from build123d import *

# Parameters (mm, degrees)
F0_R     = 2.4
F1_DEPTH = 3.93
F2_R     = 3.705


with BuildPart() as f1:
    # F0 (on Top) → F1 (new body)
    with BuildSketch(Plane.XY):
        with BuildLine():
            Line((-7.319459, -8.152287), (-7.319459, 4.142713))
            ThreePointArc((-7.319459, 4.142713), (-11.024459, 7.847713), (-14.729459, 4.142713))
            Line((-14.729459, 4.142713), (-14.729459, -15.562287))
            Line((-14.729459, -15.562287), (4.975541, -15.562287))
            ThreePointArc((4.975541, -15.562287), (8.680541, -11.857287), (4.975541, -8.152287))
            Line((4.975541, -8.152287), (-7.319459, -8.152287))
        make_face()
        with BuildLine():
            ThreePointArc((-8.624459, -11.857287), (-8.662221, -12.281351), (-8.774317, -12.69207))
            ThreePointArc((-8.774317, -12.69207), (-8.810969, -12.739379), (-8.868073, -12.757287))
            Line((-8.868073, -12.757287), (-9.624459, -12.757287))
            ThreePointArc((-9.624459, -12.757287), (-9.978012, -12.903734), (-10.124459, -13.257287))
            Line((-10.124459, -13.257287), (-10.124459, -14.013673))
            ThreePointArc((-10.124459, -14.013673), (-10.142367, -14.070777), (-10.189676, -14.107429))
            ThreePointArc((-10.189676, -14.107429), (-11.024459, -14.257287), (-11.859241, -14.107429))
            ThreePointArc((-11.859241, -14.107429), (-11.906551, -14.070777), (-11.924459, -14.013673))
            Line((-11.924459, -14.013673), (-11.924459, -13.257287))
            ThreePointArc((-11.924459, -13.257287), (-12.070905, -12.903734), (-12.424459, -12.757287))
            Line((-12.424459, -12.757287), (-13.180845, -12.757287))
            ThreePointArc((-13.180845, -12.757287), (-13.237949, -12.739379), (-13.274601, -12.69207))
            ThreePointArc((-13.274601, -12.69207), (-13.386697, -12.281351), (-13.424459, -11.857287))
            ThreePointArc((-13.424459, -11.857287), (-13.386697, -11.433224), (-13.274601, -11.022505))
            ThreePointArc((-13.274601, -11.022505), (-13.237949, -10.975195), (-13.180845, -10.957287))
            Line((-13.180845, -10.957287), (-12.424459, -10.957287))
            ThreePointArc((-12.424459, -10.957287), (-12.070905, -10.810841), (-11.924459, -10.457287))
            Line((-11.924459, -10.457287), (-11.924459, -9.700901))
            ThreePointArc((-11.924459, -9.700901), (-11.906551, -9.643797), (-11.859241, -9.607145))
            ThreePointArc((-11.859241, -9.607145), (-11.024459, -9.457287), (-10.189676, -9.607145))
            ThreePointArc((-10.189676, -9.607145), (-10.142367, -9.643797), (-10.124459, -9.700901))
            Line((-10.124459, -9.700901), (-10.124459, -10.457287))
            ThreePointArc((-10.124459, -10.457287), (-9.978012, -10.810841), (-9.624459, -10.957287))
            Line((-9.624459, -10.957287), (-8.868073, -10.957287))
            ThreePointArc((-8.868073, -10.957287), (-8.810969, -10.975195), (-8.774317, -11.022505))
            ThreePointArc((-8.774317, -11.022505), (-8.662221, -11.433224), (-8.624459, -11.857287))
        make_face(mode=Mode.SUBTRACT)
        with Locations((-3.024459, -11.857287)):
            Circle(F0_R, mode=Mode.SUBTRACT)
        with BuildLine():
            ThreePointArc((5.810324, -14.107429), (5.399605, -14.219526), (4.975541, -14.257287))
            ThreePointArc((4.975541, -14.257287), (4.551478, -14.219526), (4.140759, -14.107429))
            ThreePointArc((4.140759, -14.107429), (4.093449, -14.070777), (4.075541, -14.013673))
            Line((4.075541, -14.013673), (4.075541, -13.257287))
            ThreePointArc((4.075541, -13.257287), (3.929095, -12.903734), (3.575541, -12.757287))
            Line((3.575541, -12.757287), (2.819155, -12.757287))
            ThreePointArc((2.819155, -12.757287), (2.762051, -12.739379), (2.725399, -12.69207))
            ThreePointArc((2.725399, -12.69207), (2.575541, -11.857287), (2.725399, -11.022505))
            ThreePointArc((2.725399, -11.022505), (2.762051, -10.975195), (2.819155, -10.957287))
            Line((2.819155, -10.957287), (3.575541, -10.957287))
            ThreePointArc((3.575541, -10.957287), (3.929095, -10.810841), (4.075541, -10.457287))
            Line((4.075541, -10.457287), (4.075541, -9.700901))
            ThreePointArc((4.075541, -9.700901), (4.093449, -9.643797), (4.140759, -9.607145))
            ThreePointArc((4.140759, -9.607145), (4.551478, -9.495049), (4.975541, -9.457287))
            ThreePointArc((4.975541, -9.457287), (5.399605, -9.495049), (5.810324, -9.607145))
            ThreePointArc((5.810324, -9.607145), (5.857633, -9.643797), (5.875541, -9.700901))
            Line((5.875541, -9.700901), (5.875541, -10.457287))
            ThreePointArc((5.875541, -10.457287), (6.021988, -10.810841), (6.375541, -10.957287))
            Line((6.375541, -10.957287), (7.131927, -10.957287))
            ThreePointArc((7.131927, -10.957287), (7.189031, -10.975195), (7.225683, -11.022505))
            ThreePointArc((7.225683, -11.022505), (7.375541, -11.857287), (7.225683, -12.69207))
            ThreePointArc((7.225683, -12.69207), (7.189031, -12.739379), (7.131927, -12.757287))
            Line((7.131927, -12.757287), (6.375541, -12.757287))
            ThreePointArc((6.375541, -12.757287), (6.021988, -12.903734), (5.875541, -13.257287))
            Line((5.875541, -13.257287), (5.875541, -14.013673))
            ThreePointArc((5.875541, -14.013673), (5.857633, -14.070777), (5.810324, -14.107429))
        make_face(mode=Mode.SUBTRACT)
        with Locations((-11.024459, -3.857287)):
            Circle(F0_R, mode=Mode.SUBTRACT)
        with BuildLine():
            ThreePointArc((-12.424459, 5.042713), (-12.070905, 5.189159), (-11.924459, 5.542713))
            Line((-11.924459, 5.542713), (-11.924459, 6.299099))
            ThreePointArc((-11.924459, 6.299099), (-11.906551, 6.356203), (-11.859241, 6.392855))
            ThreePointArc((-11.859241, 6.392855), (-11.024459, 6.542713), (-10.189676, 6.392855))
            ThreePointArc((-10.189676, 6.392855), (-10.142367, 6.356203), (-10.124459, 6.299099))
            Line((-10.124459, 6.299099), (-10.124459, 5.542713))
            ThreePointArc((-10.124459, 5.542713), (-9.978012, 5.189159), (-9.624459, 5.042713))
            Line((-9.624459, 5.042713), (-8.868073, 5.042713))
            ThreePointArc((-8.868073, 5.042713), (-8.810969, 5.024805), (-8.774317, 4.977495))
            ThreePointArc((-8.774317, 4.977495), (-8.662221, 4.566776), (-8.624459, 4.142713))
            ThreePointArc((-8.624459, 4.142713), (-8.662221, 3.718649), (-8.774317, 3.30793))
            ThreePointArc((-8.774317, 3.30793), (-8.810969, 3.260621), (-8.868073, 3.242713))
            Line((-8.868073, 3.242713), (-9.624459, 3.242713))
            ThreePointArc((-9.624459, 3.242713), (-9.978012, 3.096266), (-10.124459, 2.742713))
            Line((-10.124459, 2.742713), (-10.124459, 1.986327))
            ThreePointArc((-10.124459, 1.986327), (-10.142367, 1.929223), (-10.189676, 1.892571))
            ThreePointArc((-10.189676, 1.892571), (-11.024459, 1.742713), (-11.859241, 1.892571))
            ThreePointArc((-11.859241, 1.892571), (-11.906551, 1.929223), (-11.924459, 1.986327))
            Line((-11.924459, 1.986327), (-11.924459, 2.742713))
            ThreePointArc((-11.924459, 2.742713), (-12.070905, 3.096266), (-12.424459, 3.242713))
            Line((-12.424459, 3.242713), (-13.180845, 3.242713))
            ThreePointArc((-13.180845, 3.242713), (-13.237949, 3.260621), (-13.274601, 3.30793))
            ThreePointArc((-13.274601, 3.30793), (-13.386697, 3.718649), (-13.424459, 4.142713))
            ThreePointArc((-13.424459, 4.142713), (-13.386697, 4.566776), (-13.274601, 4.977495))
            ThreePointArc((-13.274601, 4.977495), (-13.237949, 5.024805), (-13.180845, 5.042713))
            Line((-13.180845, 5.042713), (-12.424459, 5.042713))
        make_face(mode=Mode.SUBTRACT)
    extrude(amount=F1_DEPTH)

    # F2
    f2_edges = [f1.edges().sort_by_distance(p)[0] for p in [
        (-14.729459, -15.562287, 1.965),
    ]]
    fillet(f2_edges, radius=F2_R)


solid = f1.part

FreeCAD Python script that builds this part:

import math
import FreeCAD as App
import Part
import Sketcher
from FreeCAD import Vector
Q = App.Units.Quantity


def edges_at(feature, points):
    """Names of the edges that pass closest to the given points."""
    edges = feature.Shape.Edges
    near = lambda p: min(range(len(edges)), key=lambda i: edges[i].distToShape(Part.Vertex(*p))[0])
    return sorted({f"Edge{near(p) + 1}" for p in points})

doc = App.newDocument("Part")
body = doc.addObject("PartDesign::Body", "Body")

# Sketch on XY plane
sketch1 = doc.addObject("Sketcher::SketchObject", "Sketch")
body.addObject(sketch1)
sketch1.AttachmentSupport = (doc.XY_Plane, [""])
sketch1.MapMode = "FlatFace"
sketch1.addGeometry([
    Part.LineSegment(Vector(-7.319459, -8.152287, 0), Vector(-7.319459, 4.142713, 0)),  # 0
    Part.ArcOfCircle(Part.Circle(Vector(-11.024459, 4.142713, 0), Vector(0, 0, 1), 3.705), math.radians(0), math.radians(180)),  # 1
    Part.LineSegment(Vector(-14.729459, 4.142713, 0), Vector(-14.729459, -15.562287, 0)),  # 2
    Part.LineSegment(Vector(-14.729459, -15.562287, 0), Vector(4.975541, -15.562287, 0)),  # 3
    Part.ArcOfCircle(Part.Circle(Vector(4.975541, -11.857287, 0), Vector(0, 0, 1), 3.705), math.radians(-90), math.radians(90)),  # 4
    Part.LineSegment(Vector(4.975541, -8.152287, 0), Vector(-7.319459, -8.152287, 0)),  # 5
    Part.ArcOfCircle(Part.Circle(Vector(-11.024488, -11.857292, 0), Vector(0, 0, 1), 2.400029), math.radians(0.000123), math.radians(20.354268)),  # 6
    Part.ArcOfCircle(Part.Circle(Vector(-11.024488, -11.857283, 0), Vector(0, 0, 1), 2.400029), math.radians(-20.354268), math.radians(-0.000099)),  # 7
    Part.ArcOfCircle(Part.Circle(Vector(-8.868074, -12.657286, 0), Vector(0, 0, 1), 0.100001), math.radians(-89.999553), math.radians(-20.355229)),  # 8
    Part.LineSegment(Vector(-8.868073, -12.757287, 0), Vector(-9.624459, -12.757287, 0)),  # 9
    Part.ArcOfCircle(Part.Circle(Vector(-9.624458, -13.257288, 0), Vector(0, 0, 1), 0.500001), math.radians(90.000153), math.radians(179.999847)),  # 10
    Part.LineSegment(Vector(-10.124459, -13.257287, 0), Vector(-10.124459, -14.013673, 0)),  # 11
    Part.ArcOfCircle(Part.Circle(Vector(-10.22446, -14.013672, 0), Vector(0, 0, 1), 0.100001), math.radians(-69.644771), math.radians(-0.000447)),  # 12
    Part.ArcOfCircle(Part.Circle(Vector(-11.024458, -11.857284, 0), Vector(0, 0, 1), 2.400003), math.radians(-110.354379), math.radians(-69.645621)),  # 13
    Part.ArcOfCircle(Part.Circle(Vector(-11.824459, -14.013673, 0), Vector(0, 0, 1), 0.1), math.radians(-179.999727), math.radians(-110.354231)),  # 14
    Part.LineSegment(Vector(-11.924459, -14.013673, 0), Vector(-11.924459, -13.257287, 0)),  # 15
    Part.ArcOfCircle(Part.Circle(Vector(-12.424459, -13.257287, 0), Vector(0, 0, 1), 0.5), math.radians(-0.000043), math.radians(90.000043)),  # 16
    Part.LineSegment(Vector(-12.424459, -12.757287, 0), Vector(-13.180845, -12.757287, 0)),  # 17
    Part.ArcOfCircle(Part.Circle(Vector(-13.180844, -12.657286, 0), Vector(0, 0, 1), 0.100001), math.radians(-159.644771), math.radians(-90.000447)),  # 18
    Part.ArcOfCircle(Part.Circle(Vector(-11.02443, -11.857283, 0), Vector(0, 0, 1), 2.400029), math.radians(-179.999901), math.radians(-159.645732)),  # 19
    Part.ArcOfCircle(Part.Circle(Vector(-11.02443, -11.857292, 0), Vector(0, 0, 1), 2.400029), math.radians(159.645732), math.radians(179.999877)),  # 20
    Part.ArcOfCircle(Part.Circle(Vector(-13.180845, -11.057287, 0), Vector(0, 0, 1), 0.1), math.radians(90.000273), math.radians(159.645769)),  # 21
    Part.LineSegment(Vector(-13.180845, -10.957287, 0), Vector(-12.424459, -10.957287, 0)),  # 22
    Part.ArcOfCircle(Part.Circle(Vector(-12.424457, -10.457289, 0), Vector(0, 0, 1), 0.499998), math.radians(-90.000238), math.radians(0.000238)),  # 23
    Part.LineSegment(Vector(-11.924459, -10.457287, 0), Vector(-11.924459, -9.700901, 0)),  # 24
    Part.ArcOfCircle(Part.Circle(Vector(-11.824459, -9.700901, 0), Vector(0, 0, 1), 0.1), math.radians(110.354231), math.radians(179.999727)),  # 25
    Part.ArcOfCircle(Part.Circle(Vector(-11.024458, -11.85729, 0), Vector(0, 0, 1), 2.400003), math.radians(69.645621), math.radians(110.354379)),  # 26
    Part.ArcOfCircle(Part.Circle(Vector(-10.22446, -9.700902, 0), Vector(0, 0, 1), 0.100001), math.radians(0.000447), math.radians(69.644771)),  # 27
    Part.LineSegment(Vector(-10.124459, -9.700901, 0), Vector(-10.124459, -10.457287, 0)),  # 28
    Part.ArcOfCircle(Part.Circle(Vector(-9.624459, -10.457287, 0), Vector(0, 0, 1), 0.5), math.radians(179.999957), math.radians(270.000043)),  # 29
    Part.LineSegment(Vector(-9.624459, -10.957287, 0), Vector(-8.868073, -10.957287, 0)),  # 30
    Part.ArcOfCircle(Part.Circle(Vector(-8.868073, -11.057287, 0), Vector(0, 0, 1), 0.1), math.radians(20.354231), math.radians(89.999727)),  # 31
    Part.Circle(Vector(-3.024459, -11.857287, 0), Vector(0, 0, 1), 2.4),  # 32
    Part.ArcOfCircle(Part.Circle(Vector(5.77554, -14.013672, 0), Vector(0, 0, 1), 0.100001), math.radians(-69.644771), math.radians(-0.000447)),  # 33
    Part.ArcOfCircle(Part.Circle(Vector(4.975548, -11.85732, 0), Vector(0, 0, 1), 2.399967), math.radians(-90.000165), math.radians(-69.645469)),  # 34
    Part.ArcOfCircle(Part.Circle(Vector(4.975535, -11.85732, 0), Vector(0, 0, 1), 2.399967), math.radians(-110.354531), math.radians(-89.999859)),  # 35
    Part.ArcOfCircle(Part.Circle(Vector(4.175541, -14.013673, 0), Vector(0, 0, 1), 0.1), math.radians(-179.999727), math.radians(-110.354231)),  # 36
    Part.LineSegment(Vector(4.075541, -14.013673, 0), Vector(4.075541, -13.257287, 0)),  # 37
    Part.ArcOfCircle(Part.Circle(Vector(3.575541, -13.257287, 0), Vector(0, 0, 1), 0.5), math.radians(-0.000043), math.radians(90.000043)),  # 38
    Part.LineSegment(Vector(3.575541, -12.757287, 0), Vector(2.819155, -12.757287, 0)),  # 39
    Part.ArcOfCircle(Part.Circle(Vector(2.819156, -12.657286, 0), Vector(0, 0, 1), 0.100001), math.radians(-159.644771), math.radians(-90.000447)),  # 40
    Part.ArcOfCircle(Part.Circle(Vector(4.975544, -11.857287, 0), Vector(0, 0, 1), 2.400003), math.radians(159.645621), math.radians(200.354379)),  # 41
    Part.ArcOfCircle(Part.Circle(Vector(2.819155, -11.057287, 0), Vector(0, 0, 1), 0.1), math.radians(90.000273), math.radians(159.645769)),  # 42
    Part.LineSegment(Vector(2.819155, -10.957287, 0), Vector(3.575541, -10.957287, 0)),  # 43
    Part.ArcOfCircle(Part.Circle(Vector(3.575543, -10.457289, 0), Vector(0, 0, 1), 0.499998), math.radians(-90.000238), math.radians(0.000238)),  # 44
    Part.LineSegment(Vector(4.075541, -10.457287, 0), Vector(4.075541, -9.700901, 0)),  # 45
    Part.ArcOfCircle(Part.Circle(Vector(4.175541, -9.700901, 0), Vector(0, 0, 1), 0.1), math.radians(110.354231), math.radians(179.999727)),  # 46
    Part.ArcOfCircle(Part.Circle(Vector(4.975546, -11.857316, 0), Vector(0, 0, 1), 2.400029), math.radians(90.000123), math.radians(110.354268)),  # 47
    Part.ArcOfCircle(Part.Circle(Vector(4.975537, -11.857316, 0), Vector(0, 0, 1), 2.400029), math.radians(69.645732), math.radians(89.999901)),  # 48
    Part.ArcOfCircle(Part.Circle(Vector(5.77554, -9.700902, 0), Vector(0, 0, 1), 0.100001), math.radians(0.000447), math.radians(69.644771)),  # 49
    Part.LineSegment(Vector(5.875541, -9.700901, 0), Vector(5.875541, -10.457287, 0)),  # 50
    Part.ArcOfCircle(Part.Circle(Vector(6.375541, -10.457287, 0), Vector(0, 0, 1), 0.5), math.radians(179.999957), math.radians(270.000043)),  # 51
    Part.LineSegment(Vector(6.375541, -10.957287, 0), Vector(7.131927, -10.957287, 0)),  # 52
    Part.ArcOfCircle(Part.Circle(Vector(7.131927, -11.057287, 0), Vector(0, 0, 1), 0.1), math.radians(20.354231), math.radians(89.999727)),  # 53
    Part.ArcOfCircle(Part.Circle(Vector(4.975538, -11.857287, 0), Vector(0, 0, 1), 2.400003), math.radians(-20.354379), math.radians(20.354379)),  # 54
    Part.ArcOfCircle(Part.Circle(Vector(7.131926, -12.657286, 0), Vector(0, 0, 1), 0.100001), math.radians(-89.999553), math.radians(-20.355229)),  # 55
    Part.LineSegment(Vector(7.131927, -12.757287, 0), Vector(6.375541, -12.757287, 0)),  # 56
    Part.ArcOfCircle(Part.Circle(Vector(6.375542, -13.257288, 0), Vector(0, 0, 1), 0.500001), math.radians(90.000153), math.radians(179.999847)),  # 57
    Part.LineSegment(Vector(5.875541, -13.257287, 0), Vector(5.875541, -14.013673, 0)),  # 58
    Part.Circle(Vector(-11.024459, -3.857287, 0), Vector(0, 0, 1), 2.4),  # 59
    Part.LineSegment(Vector(-13.180845, 5.042713, 0), Vector(-12.424459, 5.042713, 0)),  # 60
    Part.ArcOfCircle(Part.Circle(Vector(-12.424457, 5.542711, 0), Vector(0, 0, 1), 0.499998), math.radians(-90.000238), math.radians(0.000238)),  # 61
    Part.LineSegment(Vector(-11.924459, 5.542713, 0), Vector(-11.924459, 6.299099, 0)),  # 62
    Part.ArcOfCircle(Part.Circle(Vector(-11.824459, 6.299099, 0), Vector(0, 0, 1), 0.1), math.radians(110.354231), math.radians(179.999727)),  # 63
    Part.ArcOfCircle(Part.Circle(Vector(-11.024458, 4.14271, 0), Vector(0, 0, 1), 2.400003), math.radians(69.645621), math.radians(110.354379)),  # 64
    Part.ArcOfCircle(Part.Circle(Vector(-10.22446, 6.299098, 0), Vector(0, 0, 1), 0.100001), math.radians(0.000447), math.radians(69.644771)),  # 65
    Part.LineSegment(Vector(-10.124459, 6.299099, 0), Vector(-10.124459, 5.542713, 0)),  # 66
    Part.ArcOfCircle(Part.Circle(Vector(-9.624459, 5.542713, 0), Vector(0, 0, 1), 0.5), math.radians(179.999957), math.radians(270.000043)),  # 67
    Part.LineSegment(Vector(-9.624459, 5.042713, 0), Vector(-8.868073, 5.042713, 0)),  # 68
    Part.ArcOfCircle(Part.Circle(Vector(-8.868073, 4.942713, 0), Vector(0, 0, 1), 0.1), math.radians(20.354231), math.radians(89.999727)),  # 69
    Part.ArcOfCircle(Part.Circle(Vector(-11.024488, 4.142708, 0), Vector(0, 0, 1), 2.400029), math.radians(0.000123), math.radians(20.354268)),  # 70
    Part.ArcOfCircle(Part.Circle(Vector(-11.024488, 4.142717, 0), Vector(0, 0, 1), 2.400029), math.radians(-20.354268), math.radians(-0.000099)),  # 71
    Part.ArcOfCircle(Part.Circle(Vector(-8.868074, 3.342714, 0), Vector(0, 0, 1), 0.100001), math.radians(-89.999553), math.radians(-20.355229)),  # 72
    Part.LineSegment(Vector(-8.868073, 3.242713, 0), Vector(-9.624459, 3.242713, 0)),  # 73
    Part.ArcOfCircle(Part.Circle(Vector(-9.624458, 2.742712, 0), Vector(0, 0, 1), 0.500001), math.radians(90.000153), math.radians(179.999847)),  # 74
    Part.LineSegment(Vector(-10.124459, 2.742713, 0), Vector(-10.124459, 1.986327, 0)),  # 75
    Part.ArcOfCircle(Part.Circle(Vector(-10.22446, 1.986328, 0), Vector(0, 0, 1), 0.100001), math.radians(-69.644771), math.radians(-0.000447)),  # 76
    Part.ArcOfCircle(Part.Circle(Vector(-11.024458, 4.142716, 0), Vector(0, 0, 1), 2.400003), math.radians(-110.354379), math.radians(-69.645621)),  # 77
    Part.ArcOfCircle(Part.Circle(Vector(-11.824459, 1.986327, 0), Vector(0, 0, 1), 0.1), math.radians(-179.999727), math.radians(-110.354231)),  # 78
    Part.LineSegment(Vector(-11.924459, 1.986327, 0), Vector(-11.924459, 2.742713, 0)),  # 79
    Part.ArcOfCircle(Part.Circle(Vector(-12.424459, 2.742713, 0), Vector(0, 0, 1), 0.5), math.radians(-0.000043), math.radians(90.000043)),  # 80
    Part.LineSegment(Vector(-12.424459, 3.242713, 0), Vector(-13.180845, 3.242713, 0)),  # 81
    Part.ArcOfCircle(Part.Circle(Vector(-13.180844, 3.342714, 0), Vector(0, 0, 1), 0.100001), math.radians(-159.644771), math.radians(-90.000447)),  # 82
    Part.ArcOfCircle(Part.Circle(Vector(-11.02443, 4.142717, 0), Vector(0, 0, 1), 2.400029), math.radians(-179.999901), math.radians(-159.645732)),  # 83
    Part.ArcOfCircle(Part.Circle(Vector(-11.02443, 4.142708, 0), Vector(0, 0, 1), 2.400029), math.radians(159.645732), math.radians(179.999877)),  # 84
    Part.ArcOfCircle(Part.Circle(Vector(-13.180845, 4.942713, 0), Vector(0, 0, 1), 0.1), math.radians(90.000273), math.radians(159.645769)),  # 85
], False)
sketch1.addConstraint([
    Sketcher.Constraint("Coincident", 0, 2, 1, 1),
    Sketcher.Constraint("Coincident", 1, 2, 2, 1),
    Sketcher.Constraint("Coincident", 2, 2, 3, 1),
    Sketcher.Constraint("Coincident", 3, 2, 4, 1),
    Sketcher.Constraint("Coincident", 4, 2, 5, 1),
    Sketcher.Constraint("Coincident", 5, 2, 0, 1),
    Sketcher.Constraint("Coincident", 6, 1, 7, 2),
    Sketcher.Constraint("Coincident", 7, 1, 8, 2),
    Sketcher.Constraint("Coincident", 8, 1, 9, 1),
    Sketcher.Constraint("Coincident", 9, 2, 10, 1),
    Sketcher.Constraint("Coincident", 10, 2, 11, 1),
    Sketcher.Constraint("Coincident", 11, 2, 12, 2),
    Sketcher.Constraint("Coincident", 12, 1, 13, 2),
    Sketcher.Constraint("Coincident", 13, 1, 14, 2),
    Sketcher.Constraint("Coincident", 14, 1, 15, 1),
    Sketcher.Constraint("Coincident", 15, 2, 16, 1),
    Sketcher.Constraint("Coincident", 16, 2, 17, 1),
    Sketcher.Constraint("Coincident", 17, 2, 18, 2),
    Sketcher.Constraint("Coincident", 18, 1, 19, 2),
    Sketcher.Constraint("Coincident", 19, 1, 20, 2),
    Sketcher.Constraint("Coincident", 20, 1, 21, 2),
    Sketcher.Constraint("Coincident", 21, 1, 22, 1),
    Sketcher.Constraint("Coincident", 22, 2, 23, 1),
    Sketcher.Constraint("Coincident", 23, 2, 24, 1),
    Sketcher.Constraint("Coincident", 24, 2, 25, 2),
    Sketcher.Constraint("Coincident", 25, 1, 26, 2),
    Sketcher.Constraint("Coincident", 26, 1, 27, 2),
    Sketcher.Constraint("Coincident", 27, 1, 28, 1),
    Sketcher.Constraint("Coincident", 28, 2, 29, 1),
    Sketcher.Constraint("Coincident", 29, 2, 30, 1),
    Sketcher.Constraint("Coincident", 30, 2, 31, 2),
    Sketcher.Constraint("Coincident", 31, 1, 6, 2),
    Sketcher.Constraint("Coincident", 33, 1, 34, 2),
    Sketcher.Constraint("Coincident", 34, 1, 35, 2),
    Sketcher.Constraint("Coincident", 35, 1, 36, 2),
    Sketcher.Constraint("Coincident", 36, 1, 37, 1),
    Sketcher.Constraint("Coincident", 37, 2, 38, 1),
    Sketcher.Constraint("Coincident", 38, 2, 39, 1),
    Sketcher.Constraint("Coincident", 39, 2, 40, 2),
    Sketcher.Constraint("Coincident", 40, 1, 41, 2),
    Sketcher.Constraint("Coincident", 41, 1, 42, 2),
    Sketcher.Constraint("Coincident", 42, 1, 43, 1),
    Sketcher.Constraint("Coincident", 43, 2, 44, 1),
    Sketcher.Constraint("Coincident", 44, 2, 45, 1),
    Sketcher.Constraint("Coincident", 45, 2, 46, 2),
    Sketcher.Constraint("Coincident", 46, 1, 47, 2),
    Sketcher.Constraint("Coincident", 47, 1, 48, 2),
    Sketcher.Constraint("Coincident", 48, 1, 49, 2),
    Sketcher.Constraint("Coincident", 49, 1, 50, 1),
    Sketcher.Constraint("Coincident", 50, 2, 51, 1),
    Sketcher.Constraint("Coincident", 51, 2, 52, 1),
    Sketcher.Constraint("Coincident", 52, 2, 53, 2),
    Sketcher.Constraint("Coincident", 53, 1, 54, 2),
    Sketcher.Constraint("Coincident", 54, 1, 55, 2),
    Sketcher.Constraint("Coincident", 55, 1, 56, 1),
    Sketcher.Constraint("Coincident", 56, 2, 57, 1),
    Sketcher.Constraint("Coincident", 57, 2, 58, 1),
    Sketcher.Constraint("Coincident", 58, 2, 33, 2),
    Sketcher.Constraint("Coincident", 60, 2, 61, 1),
    Sketcher.Constraint("Coincident", 61, 2, 62, 1),
    Sketcher.Constraint("Coincident", 62, 2, 63, 2),
    Sketcher.Constraint("Coincident", 63, 1, 64, 2),
    Sketcher.Constraint("Coincident", 64, 1, 65, 2),
    Sketcher.Constraint("Coincident", 65, 1, 66, 1),
    Sketcher.Constraint("Coincident", 66, 2, 67, 1),
    Sketcher.Constraint("Coincident", 67, 2, 68, 1),
    Sketcher.Constraint("Coincident", 68, 2, 69, 2),
    Sketcher.Constraint("Coincident", 69, 1, 70, 2),
    Sketcher.Constraint("Coincident", 70, 1, 71, 2),
    Sketcher.Constraint("Coincident", 71, 1, 72, 2),
    Sketcher.Constraint("Coincident", 72, 1, 73, 1),
    Sketcher.Constraint("Coincident", 73, 2, 74, 1),
    Sketcher.Constraint("Coincident", 74, 2, 75, 1),
    Sketcher.Constraint("Coincident", 75, 2, 76, 2),
    Sketcher.Constraint("Coincident", 76, 1, 77, 2),
    Sketcher.Constraint("Coincident", 77, 1, 78, 2),
    Sketcher.Constraint("Coincident", 78, 1, 79, 1),
    Sketcher.Constraint("Coincident", 79, 2, 80, 1),
    Sketcher.Constraint("Coincident", 80, 2, 81, 1),
    Sketcher.Constraint("Coincident", 81, 2, 82, 2),
    Sketcher.Constraint("Coincident", 82, 1, 83, 2),
    Sketcher.Constraint("Coincident", 83, 1, 84, 2),
    Sketcher.Constraint("Coincident", 84, 1, 85, 2),
    Sketcher.Constraint("Coincident", 85, 1, 60, 1),
    Sketcher.Constraint("Vertical", 0),
    Sketcher.Constraint("Vertical", 2),
    Sketcher.Constraint("Horizontal", 3),
    Sketcher.Constraint("Horizontal", 5),
    Sketcher.Constraint("Horizontal", 9),
    Sketcher.Constraint("Vertical", 11),
    Sketcher.Constraint("Vertical", 15),
    Sketcher.Constraint("Horizontal", 17),
    Sketcher.Constraint("Horizontal", 22),
    Sketcher.Constraint("Vertical", 24),
    Sketcher.Constraint("Vertical", 28),
    Sketcher.Constraint("Horizontal", 30),
    Sketcher.Constraint("Vertical", 37),
    Sketcher.Constraint("Horizontal", 39),
    Sketcher.Constraint("Horizontal", 43),
    Sketcher.Constraint("Vertical", 45),
    Sketcher.Constraint("Vertical", 50),
    Sketcher.Constraint("Horizontal", 52),
    Sketcher.Constraint("Horizontal", 56),
    Sketcher.Constraint("Vertical", 58),
    Sketcher.Constraint("Horizontal", 60),
    Sketcher.Constraint("Vertical", 62),
    Sketcher.Constraint("Vertical", 66),
    Sketcher.Constraint("Horizontal", 68),
    Sketcher.Constraint("Horizontal", 73),
    Sketcher.Constraint("Vertical", 75),
    Sketcher.Constraint("Vertical", 79),
    Sketcher.Constraint("Horizontal", 81),
    Sketcher.Constraint("Coincident", 7, 3, 6, 3),
    Sketcher.Constraint("Coincident", 20, 3, 19, 3),
    Sketcher.Constraint("Coincident", 26, 3, 13, 3),
    Sketcher.Constraint("Coincident", 41, 3, 4, 3),
    Sketcher.Constraint("Coincident", 47, 3, 34, 3),
    Sketcher.Constraint("Coincident", 48, 3, 35, 3),
    Sketcher.Constraint("Coincident", 54, 3, 4, 3),
    Sketcher.Constraint("Coincident", 64, 3, 1, 3),
    Sketcher.Constraint("Coincident", 71, 3, 70, 3),
    Sketcher.Constraint("Coincident", 77, 3, 1, 3),
    Sketcher.Constraint("Coincident", 84, 3, 83, 3),
    Sketcher.Constraint("Diameter", 32, Q("4.8 mm")),
    Sketcher.Constraint("Diameter", 59, Q("4.8 mm")),
    Sketcher.Constraint("Radius", 8, Q("0.100001 mm")),
    Sketcher.Constraint("Radius", 10, Q("0.500001 mm")),
    Sketcher.Constraint("Radius", 12, Q("0.100001 mm")),
    Sketcher.Constraint("Radius", 14, Q("0.1 mm")),
    Sketcher.Constraint("Radius", 16, Q("0.5 mm")),
    Sketcher.Constraint("Radius", 18, Q("0.100001 mm")),
    Sketcher.Constraint("Radius", 21, Q("0.1 mm")),
    Sketcher.Constraint("Radius", 25, Q("0.1 mm")),
    Sketcher.Constraint("Radius", 27, Q("0.100001 mm")),
    Sketcher.Constraint("Radius", 29, Q("0.5 mm")),
    Sketcher.Constraint("Radius", 31, Q("0.1 mm")),
    Sketcher.Constraint("Radius", 33, Q("0.100001 mm")),
    Sketcher.Constraint("Radius", 36, Q("0.1 mm")),
    Sketcher.Constraint("Radius", 38, Q("0.5 mm")),
    Sketcher.Constraint("Radius", 40, Q("0.100001 mm")),
    Sketcher.Constraint("Radius", 42, Q("0.1 mm")),
    Sketcher.Constraint("Radius", 46, Q("0.1 mm")),
    Sketcher.Constraint("Radius", 49, Q("0.100001 mm")),
    Sketcher.Constraint("Radius", 51, Q("0.5 mm")),
    Sketcher.Constraint("Radius", 53, Q("0.1 mm")),
    Sketcher.Constraint("Radius", 55, Q("0.100001 mm")),
    Sketcher.Constraint("Radius", 57, Q("0.500001 mm")),
    Sketcher.Constraint("Radius", 63, Q("0.1 mm")),
    Sketcher.Constraint("Radius", 65, Q("0.100001 mm")),
    Sketcher.Constraint("Radius", 67, Q("0.5 mm")),
    Sketcher.Constraint("Radius", 69, Q("0.1 mm")),
    Sketcher.Constraint("Radius", 72, Q("0.100001 mm")),
    Sketcher.Constraint("Radius", 74, Q("0.500001 mm")),
    Sketcher.Constraint("Radius", 76, Q("0.100001 mm")),
    Sketcher.Constraint("Radius", 78, Q("0.1 mm")),
    Sketcher.Constraint("Radius", 80, Q("0.5 mm")),
    Sketcher.Constraint("Radius", 82, Q("0.100001 mm")),
    Sketcher.Constraint("Radius", 85, Q("0.1 mm")),
    Sketcher.Constraint("Radius", 1, Q("3.705 mm")),
    Sketcher.Constraint("Radius", 4, Q("3.705 mm")),
    Sketcher.Constraint("DistanceX", 3, 1, 3, 2, Q("19.705 mm")),
    Sketcher.Constraint("DistanceX", 5, 2, 5, 1, Q("12.295 mm")),
    Sketcher.Constraint("DistanceY", 0, 1, 0, 2, Q("12.295 mm")),
    Sketcher.Constraint("DistanceY", 2, 2, 2, 1, Q("19.705 mm")),
    Sketcher.Constraint("Radius", 6, Q("2.400029 mm")),
    Sketcher.Constraint("Radius", 19, Q("2.400029 mm")),
    Sketcher.Constraint("Radius", 47, Q("2.400029 mm")),
    Sketcher.Constraint("Radius", 48, Q("2.400029 mm")),
    Sketcher.Constraint("Radius", 70, Q("2.400029 mm")),
    Sketcher.Constraint("Radius", 83, Q("2.400029 mm")),
    Sketcher.Constraint("Radius", 13, Q("2.400003 mm")),
    Sketcher.Constraint("Radius", 23, Q("0.499998 mm")),
    Sketcher.Constraint("Radius", 26, Q("2.400003 mm")),
    Sketcher.Constraint("Radius", 34, Q("2.399967 mm")),
    Sketcher.Constraint("Radius", 41, Q("2.400003 mm")),
    Sketcher.Constraint("Radius", 44, Q("0.499998 mm")),
    Sketcher.Constraint("Radius", 54, Q("2.400003 mm")),
    Sketcher.Constraint("Radius", 61, Q("0.499998 mm")),
    Sketcher.Constraint("Radius", 64, Q("2.400003 mm")),
    Sketcher.Constraint("Radius", 77, Q("2.400003 mm")),
    Sketcher.Constraint("DistanceY", 25, 3, -1, 1, Q("9.700901 mm")),
    Sketcher.Constraint("DistanceY", 27, 3, -1, 1, Q("9.700902 mm")),
    Sketcher.Constraint("DistanceY", 46, 3, -1, 1, Q("9.700901 mm")),
    Sketcher.Constraint("DistanceY", 49, 3, -1, 1, Q("9.700902 mm")),
    Sketcher.Constraint("DistanceY", -1, 1, 63, 3, Q("6.299099 mm")),
    Sketcher.Constraint("DistanceY", -1, 1, 65, 3, Q("6.299098 mm")),
    Sketcher.Constraint("DistanceX", 18, 1, -1, 1, Q("13.274601 mm")),
    Sketcher.Constraint("DistanceX", 20, 1, -1, 1, Q("13.274601 mm")),
    Sketcher.Constraint("DistanceY", 24, 2, -1, 1, Q("9.700901 mm")),
    Sketcher.Constraint("DistanceY", 27, 1, -1, 1, Q("9.700901 mm")),
    Sketcher.Constraint("DistanceX", -1, 1, 40, 1, Q("2.725399 mm")),
    Sketcher.Constraint("DistanceX", -1, 1, 41, 1, Q("2.725399 mm")),
    Sketcher.Constraint("DistanceY", 45, 2, -1, 1, Q("9.700901 mm")),
    Sketcher.Constraint("DistanceY", 49, 1, -1, 1, Q("9.700901 mm")),
    Sketcher.Constraint("DistanceY", -1, 1, 62, 2, Q("6.299099 mm")),
    Sketcher.Constraint("DistanceY", -1, 1, 65, 1, Q("6.299099 mm")),
    Sketcher.Constraint("DistanceX", 82, 1, -1, 1, Q("13.274601 mm")),
    Sketcher.Constraint("DistanceX", 84, 1, -1, 1, Q("13.274601 mm")),
    Sketcher.Constraint("DistanceX", 9, 2, 9, 1, Q("0.756386 mm")),
    Sketcher.Constraint("DistanceX", 17, 2, 17, 1, Q("0.756386 mm")),
    Sketcher.Constraint("DistanceX", 22, 1, 22, 2, Q("0.756386 mm")),
    Sketcher.Constraint("DistanceX", 30, 1, 30, 2, Q("0.756386 mm")),
    Sketcher.Constraint("DistanceX", 39, 2, 39, 1, Q("0.756386 mm")),
    Sketcher.Constraint("DistanceX", 43, 1, 43, 2, Q("0.756386 mm")),
    Sketcher.Constraint("DistanceX", 52, 1, 52, 2, Q("0.756386 mm")),
    Sketcher.Constraint("DistanceX", 56, 2, 56, 1, Q("0.756386 mm")),
    Sketcher.Constraint("DistanceX", 60, 1, 60, 2, Q("0.756386 mm")),
    Sketcher.Constraint("DistanceX", 68, 1, 68, 2, Q("0.756386 mm")),
    Sketcher.Constraint("DistanceX", 73, 2, 73, 1, Q("0.756386 mm")),
    Sketcher.Constraint("DistanceX", 81, 2, 81, 1, Q("0.756386 mm")),
    Sketcher.Constraint("DistanceY", 11, 2, 11, 1, Q("0.756386 mm")),
    Sketcher.Constraint("DistanceY", 15, 1, 15, 2, Q("0.756386 mm")),
    Sketcher.Constraint("DistanceY", 24, 1, 24, 2, Q("0.756386 mm")),
    Sketcher.Constraint("DistanceY", 28, 2, 28, 1, Q("0.756386 mm")),
    Sketcher.Constraint("DistanceY", 37, 1, 37, 2, Q("0.756386 mm")),
    Sketcher.Constraint("DistanceY", 45, 1, 45, 2, Q("0.756386 mm")),
    Sketcher.Constraint("DistanceY", 50, 2, 50, 1, Q("0.756386 mm")),
    Sketcher.Constraint("DistanceY", 58, 2, 58, 1, Q("0.756386 mm")),
    Sketcher.Constraint("DistanceY", 62, 1, 62, 2, Q("0.756386 mm")),
    Sketcher.Constraint("DistanceY", 66, 2, 66, 1, Q("0.756386 mm")),
    Sketcher.Constraint("DistanceY", 75, 2, 75, 1, Q("0.756386 mm")),
    Sketcher.Constraint("DistanceY", 79, 1, 79, 2, Q("0.756386 mm")),
    Sketcher.Constraint("DistanceX", 1, 3, -1, 1, Q("11.024459 mm")),
    Sketcher.Constraint("DistanceX", -1, 1, 4, 3, Q("4.975541 mm")),
    Sketcher.Constraint("DistanceY", 10, 3, -1, 1, Q("13.257288 mm")),
    Sketcher.Constraint("DistanceX", 12, 3, -1, 1, Q("10.22446 mm")),
    Sketcher.Constraint("DistanceX", 13, 3, -1, 1, Q("11.024458 mm")),
    Sketcher.Constraint("DistanceX", 14, 3, -1, 1, Q("11.824459 mm")),
    Sketcher.Constraint("DistanceX", 19, 3, -1, 1, Q("11.02443 mm")),
    Sketcher.Constraint("DistanceY", 23, 3, -1, 1, Q("10.457289 mm")),
    Sketcher.Constraint("DistanceX", 25, 3, -1, 1, Q("11.824459 mm")),
    Sketcher.Constraint("DistanceX", 32, 3, -1, 1, Q("3.024459 mm")),
    Sketcher.Constraint("DistanceX", -1, 1, 33, 3, Q("5.77554 mm")),
    Sketcher.Constraint("DistanceY", 34, 3, -1, 1, Q("11.85732 mm")),
    Sketcher.Constraint("DistanceX", -1, 1, 36, 3, Q("4.175541 mm")),
    Sketcher.Constraint("DistanceY", 44, 3, -1, 1, Q("10.457289 mm")),
    Sketcher.Constraint("DistanceX", -1, 1, 46, 3, Q("4.175541 mm")),
    Sketcher.Constraint("DistanceX", -1, 1, 49, 3, Q("5.77554 mm")),
    Sketcher.Constraint("DistanceY", 57, 3, -1, 1, Q("13.257288 mm")),
    Sketcher.Constraint("DistanceX", 59, 3, -1, 1, Q("11.024459 mm")),
    Sketcher.Constraint("DistanceY", -1, 1, 61, 3, Q("5.542711 mm")),
    Sketcher.Constraint("DistanceX", 63, 3, -1, 1, Q("11.824459 mm")),
    Sketcher.Constraint("DistanceY", -1, 1, 74, 3, Q("2.742712 mm")),
    Sketcher.Constraint("DistanceX", 76, 3, -1, 1, Q("10.22446 mm")),
    Sketcher.Constraint("DistanceX", 78, 3, -1, 1, Q("11.824459 mm")),
    Sketcher.Constraint("DistanceX", 83, 3, -1, 1, Q("11.02443 mm")),
    Sketcher.Constraint("DistanceX", 6, 1, -1, 1, Q("8.624459 mm")),
    Sketcher.Constraint("DistanceY", 7, 1, -1, 1, Q("12.69207 mm")),
    Sketcher.Constraint("DistanceX", 9, 2, -1, 1, Q("9.624459 mm")),
    Sketcher.Constraint("DistanceY", 12, 1, -1, 1, Q("14.107429 mm")),
    Sketcher.Constraint("DistanceX", 13, 1, -1, 1, Q("11.859241 mm")),
    Sketcher.Constraint("DistanceX", 16, 2, -1, 1, Q("12.424459 mm")),
    Sketcher.Constraint("DistanceY", 18, 1, -1, 1, Q("12.69207 mm")),
    Sketcher.Constraint("DistanceX", 22, 2, -1, 1, Q("12.424459 mm")),
    Sketcher.Constraint("DistanceX", 25, 1, -1, 1, Q("11.859241 mm")),
    Sketcher.Constraint("DistanceX", 29, 2, -1, 1, Q("9.624459 mm")),
    Sketcher.Constraint("DistanceY", 33, 1, -1, 1, Q("14.107429 mm")),
    Sketcher.Constraint("DistanceX", -1, 1, 34, 1, Q("4.975541 mm")),
    Sketcher.Constraint("DistanceX", -1, 1, 35, 1, Q("4.140759 mm")),
    Sketcher.Constraint("DistanceX", -1, 1, 38, 2, Q("3.575541 mm")),
    Sketcher.Constraint("DistanceY", 40, 1, -1, 1, Q("12.69207 mm")),
    Sketcher.Constraint("DistanceX", -1, 1, 43, 2, Q("3.575541 mm")),
    Sketcher.Constraint("DistanceX", -1, 1, 46, 1, Q("4.140759 mm")),
    Sketcher.Constraint("DistanceX", -1, 1, 47, 1, Q("4.975541 mm")),
    Sketcher.Constraint("DistanceX", -1, 1, 51, 2, Q("6.375541 mm")),
    Sketcher.Constraint("DistanceY", 54, 1, -1, 1, Q("12.69207 mm")),
    Sketcher.Constraint("DistanceX", -1, 1, 56, 2, Q("6.375541 mm")),
    Sketcher.Constraint("DistanceX", 60, 2, -1, 1, Q("12.424459 mm")),
    Sketcher.Constraint("DistanceX", 63, 1, -1, 1, Q("11.859241 mm")),
    Sketcher.Constraint("DistanceX", 67, 2, -1, 1, Q("9.624459 mm")),
    Sketcher.Constraint("DistanceX", 70, 1, -1, 1, Q("8.624459 mm")),
    Sketcher.Constraint("DistanceY", -1, 1, 71, 1, Q("3.30793 mm")),
    Sketcher.Constraint("DistanceX", 73, 2, -1, 1, Q("9.624459 mm")),
    Sketcher.Constraint("DistanceY", -1, 1, 76, 1, Q("1.892571 mm")),
    Sketcher.Constraint("DistanceX", 77, 1, -1, 1, Q("11.859241 mm")),
    Sketcher.Constraint("DistanceX", 80, 2, -1, 1, Q("12.424459 mm")),
    Sketcher.Constraint("DistanceY", -1, 1, 82, 1, Q("3.30793 mm")),
    Sketcher.Constraint("DistanceY", 6, 3, -1, 1, Q("11.857292 mm")),
    Sketcher.Constraint("DistanceY", 16, 3, -1, 1, Q("13.257287 mm")),
    Sketcher.Constraint("DistanceY", 29, 3, -1, 1, Q("10.457287 mm")),
    Sketcher.Constraint("DistanceY", 32, 3, -1, 1, Q("11.857287 mm")),
    Sketcher.Constraint("DistanceY", 38, 3, -1, 1, Q("13.257287 mm")),
    Sketcher.Constraint("DistanceY", 51, 3, -1, 1, Q("10.457287 mm")),
    Sketcher.Constraint("DistanceY", 59, 3, -1, 1, Q("3.857287 mm")),
    Sketcher.Constraint("DistanceY", -1, 1, 67, 3, Q("5.542713 mm")),
    Sketcher.Constraint("DistanceX", 69, 3, -1, 1, Q("8.868073 mm")),
    Sketcher.Constraint("DistanceY", -1, 1, 80, 3, Q("2.742713 mm")),
    Sketcher.Constraint("DistanceY", 6, 1, -1, 1, Q("11.857287 mm")),
    Sketcher.Constraint("DistanceY", 10, 2, -1, 1, Q("13.257287 mm")),
    Sketcher.Constraint("DistanceY", 14, 1, -1, 1, Q("14.013673 mm")),
    Sketcher.Constraint("DistanceY", 19, 1, -1, 1, Q("11.857287 mm")),
    Sketcher.Constraint("DistanceX", 26, 1, -1, 1, Q("10.189676 mm")),
    Sketcher.Constraint("DistanceX", 31, 1, -1, 1, Q("8.774317 mm")),
    Sketcher.Constraint("DistanceY", 36, 1, -1, 1, Q("14.013673 mm")),
    Sketcher.Constraint("DistanceX", -1, 1, 48, 1, Q("5.810324 mm")),
    Sketcher.Constraint("DistanceX", -1, 1, 53, 1, Q("7.225683 mm")),
    Sketcher.Constraint("DistanceY", 57, 2, -1, 1, Q("13.257287 mm")),
    Sketcher.Constraint("DistanceX", 64, 1, -1, 1, Q("10.189676 mm")),
    Sketcher.Constraint("DistanceX", 69, 1, -1, 1, Q("8.774317 mm")),
    Sketcher.Constraint("DistanceY", -1, 1, 70, 1, Q("4.142713 mm")),
    Sketcher.Constraint("DistanceY", -1, 1, 74, 2, Q("2.742713 mm")),
    Sketcher.Constraint("DistanceY", -1, 1, 78, 1, Q("1.986327 mm")),
    Sketcher.Constraint("DistanceY", -1, 1, 83, 1, Q("4.142713 mm")),
])
pad1 = doc.addObject("PartDesign::Pad", "Pad")
body.addObject(pad1)
pad1.Profile = sketch1
pad1.Length = 3.93
doc.recompute()

fillet = doc.addObject("PartDesign::Fillet", "Fillet")
body.addObject(fillet)
fillet.Base = (pad1, edges_at(pad1, [(-14.729, -15.562, 1.965)]))
fillet.Radius = 3.705

doc.recompute()
